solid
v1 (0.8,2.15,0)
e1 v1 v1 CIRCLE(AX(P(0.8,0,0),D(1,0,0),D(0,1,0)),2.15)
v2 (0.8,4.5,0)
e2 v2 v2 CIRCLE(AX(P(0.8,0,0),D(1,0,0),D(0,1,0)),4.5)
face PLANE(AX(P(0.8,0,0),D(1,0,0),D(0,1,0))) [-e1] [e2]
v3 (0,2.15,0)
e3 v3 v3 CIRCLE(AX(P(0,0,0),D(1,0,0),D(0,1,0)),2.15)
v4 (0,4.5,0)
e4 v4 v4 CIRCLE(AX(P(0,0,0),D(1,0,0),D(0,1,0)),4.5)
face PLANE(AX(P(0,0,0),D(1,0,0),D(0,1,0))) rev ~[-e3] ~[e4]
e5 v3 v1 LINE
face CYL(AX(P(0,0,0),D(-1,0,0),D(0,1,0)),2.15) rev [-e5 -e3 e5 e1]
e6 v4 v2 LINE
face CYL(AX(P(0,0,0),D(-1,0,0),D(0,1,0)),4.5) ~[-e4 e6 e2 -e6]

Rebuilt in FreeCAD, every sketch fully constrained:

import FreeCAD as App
import Part
import Sketcher
from FreeCAD import Vector

doc = App.newDocument("Part")
params = doc.addObject("Spreadsheet::Sheet", "Params")
for row, (alias, value) in enumerate([
    ("sketch1_diameter", "9 mm"),
    ("sketch1_diameter2", "4.3 mm"),
    ("pad1_length", "0.8 mm"),
], start=1):
    params.set(f"A{row}", alias)
    params.set(f"B{row}", "=" + value)
    params.setAlias(f"B{row}", alias)

body = doc.addObject("PartDesign::Body", "Body")

# Sketch on YZ plane
sketch1 = body.newObject("Sketcher::SketchObject", "Sketch")
sketch1.AttachmentSupport = (doc.getObject("YZ_Plane"), [""])
sketch1.MapMode = "FlatFace"
sketch1.addGeometry(Part.Circle(Vector(0, 0, 0), Vector(0, 0, 1), 4.5), False)
sketch1.addGeometry(Part.Circle(Vector(0, 0, 0), Vector(0, 0, 1), 2.1), False)
sketch1.addConstraint(Sketcher.Constraint("Coincident", 0, 3, -1, 1))
sketch1.addConstraint(Sketcher.Constraint("Coincident", 1, 3, -1, 1))
sketch1.addConstraint(Sketcher.Constraint("Diameter", 0, 9.0))
sketch1.addConstraint(Sketcher.Constraint("Diameter", 1, 4.3))
sketch1.setExpression("Constraints[2]", "Params.sketch1_diameter")
sketch1.setExpression("Constraints[3]", "Params.sketch1_diameter2")
pad1 = body.newObject("PartDesign::Pad", "Pad")
pad1.Profile = sketch1
pad1.setExpression("Length", "Params.pad1_length")

doc.recompute()
